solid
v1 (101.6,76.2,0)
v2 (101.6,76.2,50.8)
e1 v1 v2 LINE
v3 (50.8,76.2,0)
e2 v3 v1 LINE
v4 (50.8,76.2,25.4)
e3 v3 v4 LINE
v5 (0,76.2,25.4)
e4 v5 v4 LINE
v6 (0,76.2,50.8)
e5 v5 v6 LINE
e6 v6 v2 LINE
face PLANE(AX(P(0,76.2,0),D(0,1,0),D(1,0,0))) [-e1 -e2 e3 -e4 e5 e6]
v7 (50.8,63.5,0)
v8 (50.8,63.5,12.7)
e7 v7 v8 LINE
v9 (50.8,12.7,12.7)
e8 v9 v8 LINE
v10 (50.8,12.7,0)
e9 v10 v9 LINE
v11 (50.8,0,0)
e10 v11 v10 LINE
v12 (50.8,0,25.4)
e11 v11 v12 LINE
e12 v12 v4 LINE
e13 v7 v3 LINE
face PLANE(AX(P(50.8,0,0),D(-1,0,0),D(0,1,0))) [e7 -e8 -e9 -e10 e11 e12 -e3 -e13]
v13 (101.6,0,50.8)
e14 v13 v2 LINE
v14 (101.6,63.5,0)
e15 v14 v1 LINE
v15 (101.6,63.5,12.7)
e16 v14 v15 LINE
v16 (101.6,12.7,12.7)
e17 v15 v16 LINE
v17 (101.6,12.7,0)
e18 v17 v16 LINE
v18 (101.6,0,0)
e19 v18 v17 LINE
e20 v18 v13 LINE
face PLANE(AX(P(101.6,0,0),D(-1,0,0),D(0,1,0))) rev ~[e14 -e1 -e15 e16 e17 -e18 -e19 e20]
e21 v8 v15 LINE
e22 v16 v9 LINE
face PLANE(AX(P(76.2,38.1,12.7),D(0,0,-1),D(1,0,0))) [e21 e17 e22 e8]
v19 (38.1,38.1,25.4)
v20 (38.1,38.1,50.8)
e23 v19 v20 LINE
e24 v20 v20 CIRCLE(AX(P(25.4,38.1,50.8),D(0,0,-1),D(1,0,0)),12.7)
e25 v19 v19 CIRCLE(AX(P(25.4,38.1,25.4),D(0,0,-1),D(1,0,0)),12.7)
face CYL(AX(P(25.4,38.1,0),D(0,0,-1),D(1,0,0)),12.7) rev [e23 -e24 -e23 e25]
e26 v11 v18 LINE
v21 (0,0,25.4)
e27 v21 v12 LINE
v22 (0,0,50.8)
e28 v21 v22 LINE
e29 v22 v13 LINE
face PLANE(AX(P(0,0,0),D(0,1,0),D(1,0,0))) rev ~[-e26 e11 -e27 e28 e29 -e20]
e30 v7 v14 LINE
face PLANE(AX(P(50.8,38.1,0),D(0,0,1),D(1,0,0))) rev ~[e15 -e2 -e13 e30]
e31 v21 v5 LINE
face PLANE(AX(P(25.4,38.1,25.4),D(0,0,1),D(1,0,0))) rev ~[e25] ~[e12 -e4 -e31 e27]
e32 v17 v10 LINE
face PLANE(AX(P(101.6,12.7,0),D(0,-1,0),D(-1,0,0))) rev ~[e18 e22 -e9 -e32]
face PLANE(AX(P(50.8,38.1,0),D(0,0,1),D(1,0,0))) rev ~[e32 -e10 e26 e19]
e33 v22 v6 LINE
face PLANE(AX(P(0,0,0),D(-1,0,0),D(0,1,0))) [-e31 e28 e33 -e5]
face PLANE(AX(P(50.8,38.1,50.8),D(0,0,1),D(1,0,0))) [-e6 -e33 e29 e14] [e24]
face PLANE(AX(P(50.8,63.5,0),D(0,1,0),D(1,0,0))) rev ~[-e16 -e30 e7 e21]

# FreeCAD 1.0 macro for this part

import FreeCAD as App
import Part
import Sketcher
from FreeCAD import Vector
Q = App.Units.Quantity


def add_polygon(sketch, points):
    """Adds a closed chain of lines whose ends are joined by coincident constraints."""
    first, n = sketch.GeometryCount, len(points)
    for a, b in zip(points, points[1:] + points[:1]):
        sketch.addGeometry(Part.LineSegment(App.Vector(*a, 0), App.Vector(*b, 0)), False)
    for i in range(n):
        sketch.addConstraint(Sketcher.Constraint("Coincident", first + i, 2, first + (i + 1) % n, 1))

doc = App.newDocument("Part")
body = doc.addObject("PartDesign::Body", "Body")

# Sketch on XY plane
sketch1 = body.newObject("Sketcher::SketchObject", "Sketch")
sketch1.AttachmentSupport = (doc.getObject("XY_Plane"), [""])
sketch1.MapMode = "FlatFace"
add_polygon(sketch1, [(0, 76.2), (0, 0), (101.6, 0), (101.6, 76.2)])  # lines 0-3
sketch1.addConstraint([
    Sketcher.Constraint("Vertical", 0),
    Sketcher.Constraint("Horizontal", 1),
    Sketcher.Constraint("Vertical", 2),
    Sketcher.Constraint("Horizontal", 3),
    Sketcher.Constraint("Coincident", 0, 2, -1, 1),
    Sketcher.Constraint("DistanceX", 1, 1, 1, 2, Q("4 in")),
    Sketcher.Constraint("DistanceY", 0, 2, 0, 1, Q("3 in")),
])
pad1 = body.newObject("PartDesign::Pad", "Pad")
pad1.Profile = sketch1
pad1.Length = Q("2 in")

# Sketch on XY plane
sketch2 = body.newObject("Sketcher::SketchObject", "Sketch001")
sketch2.AttachmentSupport = (doc.getObject("XY_Plane"), [""])
sketch2.MapMode = "FlatFace"
add_polygon(sketch2, [(0, 76.2), (0, 0), (50.8, 0), (50.8, 76.2)])  # lines 0-3
sketch2.addConstraint([
    Sketcher.Constraint("Vertical", 0),
    Sketcher.Constraint("Horizontal", 1),
    Sketcher.Constraint("Vertical", 2),
    Sketcher.Constraint("Horizontal", 3),
    Sketcher.Constraint("Coincident", 0, 2, -1, 1),
    Sketcher.Constraint("DistanceX", 1, 1, 1, 2, Q("2 in")),
    Sketcher.Constraint("DistanceY", 0, 2, 0, 1, Q("3 in")),
])
pocket1 = body.newObject("PartDesign::Pocket", "Pocket")
pocket1.Profile = sketch2
pocket1.Length = Q("1 in")
pocket1.Reversed = True

# Sketch on XY plane
sketch3 = body.newObject("Sketcher::SketchObject", "Sketch002")
sketch3.AttachmentSupport = (doc.getObject("XY_Plane"), [""])
sketch3.MapMode = "FlatFace"
sketch3.addGeometry(Part.Circle(Vector(25.4, 38.1, 0), Vector(0, 0, 1), 12.7), False)
sketch3.addConstraint([
    Sketcher.Constraint("Diameter", 0, Q("1 in")),
    Sketcher.Constraint("DistanceX", -1, 1, 0, 3, Q("1 in")),
    Sketcher.Constraint("DistanceY", -1, 1, 0, 3, Q("1.5 in")),
])
pocket2 = body.newObject("PartDesign::Pocket", "Pocket001")
pocket2.Profile = sketch3
pocket2.Length = Q("3 in")
pocket2.Reversed = True

# Sketch on XY plane
sketch4 = body.newObject("Sketcher::SketchObject", "Sketch003")
sketch4.AttachmentSupport = (doc.getObject("XY_Plane"), [""])
sketch4.MapMode = "FlatFace"
add_polygon(sketch4, [(101.6, 12.7), (50.8, 12.7), (50.8, 63.5), (101.6, 63.5)])  # lines 0-3
sketch4.addConstraint([
    Sketcher.Constraint("Horizontal", 0),
    Sketcher.Constraint("Vertical", 1),
    Sketcher.Constraint("Horizontal", 2),
    Sketcher.Constraint("Vertical", 3),
    Sketcher.Constraint("Equal", 2, 1),
    Sketcher.Constraint("DistanceX", 0, 2, 0, 1, Q("2 in")),
    Sketcher.Constraint("DistanceX", -1, 1, 0, 2, Q("2 in")),
    Sketcher.Constraint("DistanceY", -1, 1, 0, 2, Q("0.5 in")),
])
pocket3 = body.newObject("PartDesign::Pocket", "Pocket002")
pocket3.Profile = sketch4
pocket3.Length = Q("0.5 in")
pocket3.Reversed = True

doc.recompute()
